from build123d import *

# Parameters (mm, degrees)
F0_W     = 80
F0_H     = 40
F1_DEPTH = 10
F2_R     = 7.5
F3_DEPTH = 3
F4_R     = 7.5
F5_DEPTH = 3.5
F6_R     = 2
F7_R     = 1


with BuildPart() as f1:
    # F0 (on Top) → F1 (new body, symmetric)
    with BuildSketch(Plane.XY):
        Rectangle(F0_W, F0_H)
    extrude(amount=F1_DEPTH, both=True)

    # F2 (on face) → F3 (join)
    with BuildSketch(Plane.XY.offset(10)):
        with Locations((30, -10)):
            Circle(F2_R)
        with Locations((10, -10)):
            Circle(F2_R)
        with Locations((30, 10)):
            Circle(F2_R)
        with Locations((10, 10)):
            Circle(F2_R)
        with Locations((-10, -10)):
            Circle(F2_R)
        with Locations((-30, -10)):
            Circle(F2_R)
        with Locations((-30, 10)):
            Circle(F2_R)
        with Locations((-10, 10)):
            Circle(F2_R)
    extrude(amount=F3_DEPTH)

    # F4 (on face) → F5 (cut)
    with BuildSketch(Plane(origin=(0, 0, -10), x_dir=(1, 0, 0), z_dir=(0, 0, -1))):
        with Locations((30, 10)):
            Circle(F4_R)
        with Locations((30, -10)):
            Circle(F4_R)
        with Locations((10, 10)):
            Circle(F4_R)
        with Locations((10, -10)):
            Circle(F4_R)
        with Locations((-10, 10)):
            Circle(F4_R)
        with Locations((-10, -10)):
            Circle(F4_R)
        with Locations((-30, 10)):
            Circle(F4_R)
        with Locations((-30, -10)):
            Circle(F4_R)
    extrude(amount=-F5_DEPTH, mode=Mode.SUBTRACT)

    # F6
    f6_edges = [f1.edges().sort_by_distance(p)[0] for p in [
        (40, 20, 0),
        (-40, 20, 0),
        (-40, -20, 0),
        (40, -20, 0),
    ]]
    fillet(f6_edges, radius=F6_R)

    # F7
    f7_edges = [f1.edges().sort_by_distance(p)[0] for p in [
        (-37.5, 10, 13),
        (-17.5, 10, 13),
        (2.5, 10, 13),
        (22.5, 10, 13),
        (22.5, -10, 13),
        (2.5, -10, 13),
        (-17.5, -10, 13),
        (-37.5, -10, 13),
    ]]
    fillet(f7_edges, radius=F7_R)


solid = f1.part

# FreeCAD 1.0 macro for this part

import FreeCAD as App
import Part
import Sketcher
Q = App.Units.Quantity


def edges_at(feature, points):
    """Names of the edges that pass closest to the given points."""
    edges = feature.Shape.Edges
    near = lambda p: min(range(len(edges)), key=lambda i: edges[i].distToShape(Part.Vertex(*p))[0])
    return sorted({f"Edge{near(p) + 1}" for p in points})

doc = App.newDocument("Part")
body = doc.addObject("PartDesign::Body", "Body")

# Sketch on XY plane
sketch1 = body.newObject("Sketcher::SketchObject", "Sketch")
sketch1.AttachmentSupport = (doc.getObject("XY_Plane"), [""])
sketch1.MapMode = "FlatFace"
sketch1.addGeometry([
    Part.LineSegment(App.Vector(-40, 20, 0), App.Vector(-40, -20, 0)),
    Part.LineSegment(App.Vector(-40, -20, 0), App.Vector(40, -20, 0)),
    Part.LineSegment(App.Vector(40, -20, 0), App.Vector(40, 20, 0)),
    Part.LineSegment(App.Vector(40, 20, 0), App.Vector(-40, 20, 0)),
], False)
sketch1.addConstraint([
    Sketcher.Constraint("Coincident", 0, 2, 1, 1),
    Sketcher.Constraint("Coincident", 1, 2, 2, 1),
    Sketcher.Constraint("Coincident", 2, 2, 3, 1),
    Sketcher.Constraint("Coincident", 3, 2, 0, 1),
    Sketcher.Constraint("Vertical", 0),
    Sketcher.Constraint("Horizontal", 1),
    Sketcher.Constraint("Vertical", 2),
    Sketcher.Constraint("Horizontal", 3),
    Sketcher.Constraint("Symmetric", 0, 2, 2, 2, -1, 1),
    Sketcher.Constraint("DistanceX", 1, 1, 1, 2, Q("80 mm")),
    Sketcher.Constraint("DistanceY", 0, 2, 0, 1, Q("40 mm")),
])
pad1 = body.newObject("PartDesign::Pad", "Pad")
pad1.Profile = sketch1
pad1.Length = 20
pad1.Midplane = True

# Sketch on XY plane
sketch2 = body.newObject("Sketcher::SketchObject", "Sketch001")
sketch2.AttachmentSupport = (doc.getObject("XY_Plane"), [""])
sketch2.MapMode = "FlatFace"
sketch2.AttachmentOffset = App.Placement(App.Vector(0, 0, 10), App.Rotation())
sketch2.addGeometry([
    Part.Circle(App.Vector(30, -10, 0), App.Vector(0, 0, 1), 8),  # 0
    Part.Circle(App.Vector(10, -10, 0), App.Vector(0, 0, 1), 8),  # 1
    Part.Circle(App.Vector(30, 10, 0), App.Vector(0, 0, 1), 8),  # 2
    Part.Circle(App.Vector(10, 10, 0), App.Vector(0, 0, 1), 8),  # 3
    Part.Circle(App.Vector(-10, -10, 0), App.Vector(0, 0, 1), 8),  # 4
    Part.Circle(App.Vector(-30, -10, 0), App.Vector(0, 0, 1), 8),  # 5
    Part.Circle(App.Vector(-30, 10, 0), App.Vector(0, 0, 1), 8),  # 6
    Part.Circle(App.Vector(-10, 10, 0), App.Vector(0, 0, 1), 8),  # 7
], False)
sketch2.addConstraint([
    Sketcher.Constraint("Equal", 0, 1),
    Sketcher.Constraint("Equal", 1, 2),
    Sketcher.Constraint("Equal", 2, 3),
    Sketcher.Constraint("Equal", 3, 4),
    Sketcher.Constraint("Equal", 4, 5),
    Sketcher.Constraint("Equal", 5, 6),
    Sketcher.Constraint("Equal", 6, 7),
    Sketcher.Constraint("Symmetric", 3, 3, 4, 3, -1, 1),
    Sketcher.Constraint("Symmetric", 2, 3, 5, 3, -1, 1),
    Sketcher.Constraint("Symmetric", 0, 3, 6, 3, -1, 1),
    Sketcher.Constraint("Symmetric", 1, 3, 7, 3, -1, 1),
    Sketcher.Constraint("Symmetric", 1, 3, 4, 3, -2),
    Sketcher.Constraint("Symmetric", 0, 3, 5, 3, -2),
    Sketcher.Constraint("Horizontal", 0, 3, 1, 3),
    Sketcher.Constraint("Diameter", 0, Q("15 mm")),
    Sketcher.Constraint("DistanceX", -1, 1, 0, 3, Q("30 mm")),
    Sketcher.Constraint("DistanceY", 0, 3, -1, 1, Q("10 mm")),
    Sketcher.Constraint("DistanceX", -1, 1, 1, 3, Q("10 mm")),
])
pad2 = body.newObject("PartDesign::Pad", "Pad001")
pad2.Profile = sketch2
pad2.Length = 3

# Sketch on XY plane
sketch3 = body.newObject("Sketcher::SketchObject", "Sketch002")
sketch3.AttachmentSupport = (doc.getObject("XY_Plane"), [""])
sketch3.MapMode = "FlatFace"
sketch3.AttachmentOffset = App.Placement(App.Vector(0, 0, -10), App.Rotation())
sketch3.addGeometry([
    Part.Circle(App.Vector(30, -10, 0), App.Vector(0, 0, 1), 8),  # 0
    Part.Circle(App.Vector(30, 10, 0), App.Vector(0, 0, 1), 8),  # 1
    Part.Circle(App.Vector(10, -10, 0), App.Vector(0, 0, 1), 8),  # 2
    Part.Circle(App.Vector(10, 10, 0), App.Vector(0, 0, 1), 8),  # 3
    Part.Circle(App.Vector(-10, -10, 0), App.Vector(0, 0, 1), 8),  # 4
    Part.Circle(App.Vector(-10, 10, 0), App.Vector(0, 0, 1), 8),  # 5
    Part.Circle(App.Vector(-30, -10, 0), App.Vector(0, 0, 1), 8),  # 6
    Part.Circle(App.Vector(-30, 10, 0), App.Vector(0, 0, 1), 8),  # 7
], False)
sketch3.addConstraint([
    Sketcher.Constraint("Equal", 0, 1),
    Sketcher.Constraint("Equal", 1, 2),
    Sketcher.Constraint("Equal", 2, 3),
    Sketcher.Constraint("Equal", 3, 4),
    Sketcher.Constraint("Equal", 4, 5),
    Sketcher.Constraint("Equal", 5, 6),
    Sketcher.Constraint("Equal", 6, 7),
    Sketcher.Constraint("Symmetric", 3, 3, 4, 3, -1, 1),
    Sketcher.Constraint("Symmetric", 2, 3, 5, 3, -1, 1),
    Sketcher.Constraint("Symmetric", 1, 3, 6, 3, -1, 1),
    Sketcher.Constraint("Symmetric", 0, 3, 7, 3, -1, 1),
    Sketcher.Constraint("Symmetric", 2, 3, 4, 3, -2),
    Sketcher.Constraint("Symmetric", 0, 3, 6, 3, -2),
    Sketcher.Constraint("Horizontal", 0, 3, 2, 3),
    Sketcher.Constraint("Diameter", 0, Q("15 mm")),
    Sketcher.Constraint("DistanceX", -1, 1, 0, 3, Q("30 mm")),
    Sketcher.Constraint("DistanceY", 0, 3, -1, 1, Q("10 mm")),
    Sketcher.Constraint("DistanceX", -1, 1, 2, 3, Q("10 mm")),
])
pocket1 = body.newObject("PartDesign::Pocket", "Pocket")
pocket1.Profile = sketch3
pocket1.Length = 3.5
pocket1.Reversed = True
doc.recompute()

fillet = body.newObject("PartDesign::Fillet", "Fillet")
fillet.Base = (pocket1, edges_at(pocket1, [
    (40, 20, 0),
    (-40, 20, 0),
    (-40, -20, 0),
    (40, -20, 0),
]))
fillet.Radius = 2
doc.recompute()

fillet2 = body.newObject("PartDesign::Fillet", "Fillet001")
fillet2.Base = (fillet, edges_at(fillet, [
    (-37.5, 10, 13),
    (-17.5, 10, 13),
    (2.5, 10, 13),
    (22.5, 10, 13),
    (22.5, -10, 13),
    (2.5, -10, 13),
    (-17.5, -10, 13),
    (-37.5, -10, 13),
]))
fillet2.Radius = 1

doc.recompute()
